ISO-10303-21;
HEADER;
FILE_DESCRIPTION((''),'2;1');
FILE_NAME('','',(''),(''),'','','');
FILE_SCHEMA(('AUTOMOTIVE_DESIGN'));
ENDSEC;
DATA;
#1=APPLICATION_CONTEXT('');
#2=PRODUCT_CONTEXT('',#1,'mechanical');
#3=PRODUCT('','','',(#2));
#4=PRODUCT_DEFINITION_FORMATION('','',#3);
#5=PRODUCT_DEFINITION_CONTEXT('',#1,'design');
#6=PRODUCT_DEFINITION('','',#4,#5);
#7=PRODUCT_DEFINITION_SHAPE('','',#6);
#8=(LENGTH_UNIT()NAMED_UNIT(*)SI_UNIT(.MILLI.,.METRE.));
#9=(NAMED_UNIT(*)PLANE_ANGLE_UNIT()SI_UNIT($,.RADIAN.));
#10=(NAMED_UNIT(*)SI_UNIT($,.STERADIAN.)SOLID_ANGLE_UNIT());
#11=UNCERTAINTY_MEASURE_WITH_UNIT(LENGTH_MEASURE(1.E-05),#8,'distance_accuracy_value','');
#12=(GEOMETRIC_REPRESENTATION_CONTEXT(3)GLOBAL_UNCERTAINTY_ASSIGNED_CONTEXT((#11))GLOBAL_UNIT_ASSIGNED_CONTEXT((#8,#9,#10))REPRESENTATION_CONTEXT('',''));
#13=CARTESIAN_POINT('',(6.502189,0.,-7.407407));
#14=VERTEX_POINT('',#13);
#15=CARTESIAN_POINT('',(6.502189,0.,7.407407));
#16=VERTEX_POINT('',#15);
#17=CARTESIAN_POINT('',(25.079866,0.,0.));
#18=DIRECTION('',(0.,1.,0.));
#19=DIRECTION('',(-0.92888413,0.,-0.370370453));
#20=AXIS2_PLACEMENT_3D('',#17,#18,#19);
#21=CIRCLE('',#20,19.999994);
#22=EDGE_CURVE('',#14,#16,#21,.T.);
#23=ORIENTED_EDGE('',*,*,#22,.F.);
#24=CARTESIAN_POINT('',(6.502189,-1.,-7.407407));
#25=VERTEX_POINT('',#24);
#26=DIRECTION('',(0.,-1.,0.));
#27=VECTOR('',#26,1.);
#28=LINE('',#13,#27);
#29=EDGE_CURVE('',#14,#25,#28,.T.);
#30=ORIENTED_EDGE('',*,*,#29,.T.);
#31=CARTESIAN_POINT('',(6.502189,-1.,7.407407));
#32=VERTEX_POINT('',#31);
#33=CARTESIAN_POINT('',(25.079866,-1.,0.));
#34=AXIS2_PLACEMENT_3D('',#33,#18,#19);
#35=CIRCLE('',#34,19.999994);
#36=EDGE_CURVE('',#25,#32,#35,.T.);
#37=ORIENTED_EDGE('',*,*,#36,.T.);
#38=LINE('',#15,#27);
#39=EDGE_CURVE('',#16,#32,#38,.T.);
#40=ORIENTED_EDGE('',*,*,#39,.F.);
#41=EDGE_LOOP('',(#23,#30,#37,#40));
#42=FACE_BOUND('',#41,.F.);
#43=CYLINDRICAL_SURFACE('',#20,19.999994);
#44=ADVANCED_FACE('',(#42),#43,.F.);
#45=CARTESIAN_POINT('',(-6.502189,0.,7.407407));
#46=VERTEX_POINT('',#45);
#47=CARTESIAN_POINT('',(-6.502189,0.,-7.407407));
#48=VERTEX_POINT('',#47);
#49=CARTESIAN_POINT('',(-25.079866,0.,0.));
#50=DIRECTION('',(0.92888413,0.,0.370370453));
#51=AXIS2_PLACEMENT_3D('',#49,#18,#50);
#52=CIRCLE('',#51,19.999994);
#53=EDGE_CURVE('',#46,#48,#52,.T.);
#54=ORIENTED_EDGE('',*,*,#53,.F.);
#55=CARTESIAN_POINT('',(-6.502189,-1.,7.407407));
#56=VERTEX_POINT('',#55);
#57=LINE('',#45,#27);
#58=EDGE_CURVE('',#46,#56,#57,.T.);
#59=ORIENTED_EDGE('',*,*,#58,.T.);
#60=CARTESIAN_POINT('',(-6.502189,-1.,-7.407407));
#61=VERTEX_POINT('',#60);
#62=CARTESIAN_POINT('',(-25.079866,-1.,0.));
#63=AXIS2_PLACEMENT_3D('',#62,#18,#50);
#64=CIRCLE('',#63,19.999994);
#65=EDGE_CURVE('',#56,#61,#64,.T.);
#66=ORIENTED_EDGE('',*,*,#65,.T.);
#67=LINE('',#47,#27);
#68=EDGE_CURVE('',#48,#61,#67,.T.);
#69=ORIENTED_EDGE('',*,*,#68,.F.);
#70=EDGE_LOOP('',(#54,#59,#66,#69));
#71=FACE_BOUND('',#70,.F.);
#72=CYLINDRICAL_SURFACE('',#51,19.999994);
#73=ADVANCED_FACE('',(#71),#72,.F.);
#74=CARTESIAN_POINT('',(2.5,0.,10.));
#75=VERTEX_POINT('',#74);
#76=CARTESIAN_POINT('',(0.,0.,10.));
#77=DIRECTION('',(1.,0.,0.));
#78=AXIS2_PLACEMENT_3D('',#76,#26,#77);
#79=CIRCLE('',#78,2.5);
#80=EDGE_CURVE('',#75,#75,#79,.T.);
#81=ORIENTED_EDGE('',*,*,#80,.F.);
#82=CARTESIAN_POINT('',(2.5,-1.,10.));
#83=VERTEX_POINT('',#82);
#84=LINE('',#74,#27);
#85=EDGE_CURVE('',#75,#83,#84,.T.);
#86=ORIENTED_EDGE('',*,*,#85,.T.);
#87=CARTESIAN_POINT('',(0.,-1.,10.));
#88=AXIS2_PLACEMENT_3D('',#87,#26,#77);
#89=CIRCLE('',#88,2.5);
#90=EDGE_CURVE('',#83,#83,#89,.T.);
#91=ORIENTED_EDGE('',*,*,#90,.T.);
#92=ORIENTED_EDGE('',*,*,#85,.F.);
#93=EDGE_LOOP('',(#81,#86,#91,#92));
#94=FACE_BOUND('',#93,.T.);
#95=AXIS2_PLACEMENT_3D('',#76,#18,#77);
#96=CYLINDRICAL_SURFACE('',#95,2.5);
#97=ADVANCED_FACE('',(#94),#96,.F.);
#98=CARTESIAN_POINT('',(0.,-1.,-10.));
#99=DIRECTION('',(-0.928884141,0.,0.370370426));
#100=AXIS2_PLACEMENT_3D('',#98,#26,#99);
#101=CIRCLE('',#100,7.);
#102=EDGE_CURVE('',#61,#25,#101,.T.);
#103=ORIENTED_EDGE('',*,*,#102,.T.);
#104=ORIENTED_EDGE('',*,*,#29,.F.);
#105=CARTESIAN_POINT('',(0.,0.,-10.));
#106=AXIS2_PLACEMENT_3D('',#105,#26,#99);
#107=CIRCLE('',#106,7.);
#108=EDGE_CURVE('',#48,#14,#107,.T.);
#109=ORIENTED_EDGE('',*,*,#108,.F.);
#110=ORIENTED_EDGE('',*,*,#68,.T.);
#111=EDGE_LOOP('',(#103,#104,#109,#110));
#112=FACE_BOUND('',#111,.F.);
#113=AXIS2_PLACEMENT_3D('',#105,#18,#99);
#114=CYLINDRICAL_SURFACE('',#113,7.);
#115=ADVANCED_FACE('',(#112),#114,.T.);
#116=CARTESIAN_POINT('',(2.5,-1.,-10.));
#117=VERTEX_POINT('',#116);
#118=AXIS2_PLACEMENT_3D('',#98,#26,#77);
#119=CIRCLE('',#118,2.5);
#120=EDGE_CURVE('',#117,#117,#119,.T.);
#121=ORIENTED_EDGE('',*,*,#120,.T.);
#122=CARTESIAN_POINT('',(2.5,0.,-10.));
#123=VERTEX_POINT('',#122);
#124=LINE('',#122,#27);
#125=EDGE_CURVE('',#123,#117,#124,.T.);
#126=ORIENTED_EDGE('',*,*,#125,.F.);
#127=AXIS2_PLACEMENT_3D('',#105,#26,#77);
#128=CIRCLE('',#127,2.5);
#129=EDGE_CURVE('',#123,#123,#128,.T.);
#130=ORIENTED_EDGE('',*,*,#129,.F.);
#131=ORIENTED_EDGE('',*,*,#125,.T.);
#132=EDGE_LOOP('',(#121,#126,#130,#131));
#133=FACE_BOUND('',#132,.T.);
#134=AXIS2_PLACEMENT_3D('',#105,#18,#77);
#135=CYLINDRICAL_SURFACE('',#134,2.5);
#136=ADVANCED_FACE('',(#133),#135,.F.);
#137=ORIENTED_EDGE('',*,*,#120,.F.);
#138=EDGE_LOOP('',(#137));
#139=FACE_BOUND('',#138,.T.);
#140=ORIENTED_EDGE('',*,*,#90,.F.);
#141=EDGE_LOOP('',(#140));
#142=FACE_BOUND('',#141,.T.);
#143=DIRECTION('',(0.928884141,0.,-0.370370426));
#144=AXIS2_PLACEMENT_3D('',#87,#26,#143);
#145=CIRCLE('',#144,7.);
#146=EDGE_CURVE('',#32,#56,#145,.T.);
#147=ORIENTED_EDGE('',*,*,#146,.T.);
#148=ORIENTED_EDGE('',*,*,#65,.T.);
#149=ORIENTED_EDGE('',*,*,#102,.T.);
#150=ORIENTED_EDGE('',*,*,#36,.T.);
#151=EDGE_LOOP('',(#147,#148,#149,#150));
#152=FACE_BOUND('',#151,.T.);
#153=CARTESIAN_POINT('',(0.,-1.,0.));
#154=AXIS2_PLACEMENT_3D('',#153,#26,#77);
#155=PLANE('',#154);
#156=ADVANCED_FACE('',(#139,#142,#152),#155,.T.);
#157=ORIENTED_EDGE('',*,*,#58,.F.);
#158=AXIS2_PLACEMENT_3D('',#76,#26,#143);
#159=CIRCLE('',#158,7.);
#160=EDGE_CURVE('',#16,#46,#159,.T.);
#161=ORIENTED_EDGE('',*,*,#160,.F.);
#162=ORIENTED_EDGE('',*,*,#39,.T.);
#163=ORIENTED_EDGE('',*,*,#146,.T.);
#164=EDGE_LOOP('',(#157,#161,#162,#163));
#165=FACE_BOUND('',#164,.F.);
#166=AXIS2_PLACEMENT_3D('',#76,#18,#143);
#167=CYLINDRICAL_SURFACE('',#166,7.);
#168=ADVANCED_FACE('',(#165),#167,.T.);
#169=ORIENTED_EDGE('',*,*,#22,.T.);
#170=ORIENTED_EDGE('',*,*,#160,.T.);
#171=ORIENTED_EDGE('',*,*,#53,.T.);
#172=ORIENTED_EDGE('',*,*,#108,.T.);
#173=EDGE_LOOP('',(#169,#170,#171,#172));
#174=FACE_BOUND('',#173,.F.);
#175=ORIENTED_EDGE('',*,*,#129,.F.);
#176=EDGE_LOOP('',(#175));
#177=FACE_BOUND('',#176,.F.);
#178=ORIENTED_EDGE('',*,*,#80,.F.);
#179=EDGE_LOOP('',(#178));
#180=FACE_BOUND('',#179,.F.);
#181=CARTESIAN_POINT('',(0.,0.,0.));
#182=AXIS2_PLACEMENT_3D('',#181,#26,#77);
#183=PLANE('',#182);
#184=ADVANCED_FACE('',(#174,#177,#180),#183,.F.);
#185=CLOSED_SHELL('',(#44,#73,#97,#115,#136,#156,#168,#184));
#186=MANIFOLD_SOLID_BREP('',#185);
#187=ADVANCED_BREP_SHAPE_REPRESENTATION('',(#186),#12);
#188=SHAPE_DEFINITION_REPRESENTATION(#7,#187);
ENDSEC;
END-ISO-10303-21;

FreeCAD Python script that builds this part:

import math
import FreeCAD as App
import Part
import Sketcher
Q = App.Units.Quantity

doc = App.newDocument("Part")
body = doc.addObject("PartDesign::Body", "Body")

sketch1 = body.newObject("Sketcher::SketchObject", "Sketch")
sketch1.AttachmentSupport = (doc.getObject("XZ_Plane"), [""])
sketch1.MapMode = "FlatFace"
sketch1.addGeometry([
    Part.ArcOfCircle(Part.Circle(App.Vector(25.1, 0, 0), App.Vector(0, 0, 1), 20), math.radians(158), math.radians(202)),
    Part.ArcOfCircle(Part.Circle(App.Vector(0, 10, 0), App.Vector(0, 0, 1), 7), math.radians(-22), math.radians(202)),
    Part.ArcOfCircle(Part.Circle(App.Vector(-25.1, 0, 0), App.Vector(0, 0, 1), 20), math.radians(-22), math.radians(22)),
    Part.ArcOfCircle(Part.Circle(App.Vector(0, -10, 0), App.Vector(0, 0, 1), 7), math.radians(158), math.radians(382)),
    Part.Circle(App.Vector(0, -10, 0), App.Vector(0, 0, 1), 2.5),
    Part.Circle(App.Vector(0, 10, 0), App.Vector(0, 0, 1), 2.5),
], False)
sketch1.addConstraint([
    Sketcher.Constraint("Tangent", 0, 1, 1, 1),
    Sketcher.Constraint("Tangent", 1, 2, 2, 2),
    Sketcher.Constraint("Tangent", 2, 1, 3, 1),
    Sketcher.Constraint("Tangent", 3, 2, 0, 2),
    Sketcher.Constraint("Coincident", 4, 3, 3, 3),
    Sketcher.Constraint("Coincident", 5, 3, 1, 3),
    Sketcher.Constraint("Equal", 0, 2),
    Sketcher.Constraint("Equal", 1, 3),
    Sketcher.Constraint("Equal", 4, 5),
    Sketcher.Constraint("Symmetric", 0, 3, 2, 3, -1, 1),
    Sketcher.Constraint("PointOnObject", 0, 3, -1),
    Sketcher.Constraint("Diameter", 4, Q("5 mm")),
    Sketcher.Constraint("Radius", 1, Q("7 mm")),
    Sketcher.Constraint("DistanceY", -1, 1, 1, 3, Q("10 mm")),
    Sketcher.Constraint("Radius", 0, Q("19.999994 mm")),
])
pad1 = body.newObject("PartDesign::Pad", "Pad")
pad1.Profile = sketch1
pad1.Length = 1

doc.recompute()
